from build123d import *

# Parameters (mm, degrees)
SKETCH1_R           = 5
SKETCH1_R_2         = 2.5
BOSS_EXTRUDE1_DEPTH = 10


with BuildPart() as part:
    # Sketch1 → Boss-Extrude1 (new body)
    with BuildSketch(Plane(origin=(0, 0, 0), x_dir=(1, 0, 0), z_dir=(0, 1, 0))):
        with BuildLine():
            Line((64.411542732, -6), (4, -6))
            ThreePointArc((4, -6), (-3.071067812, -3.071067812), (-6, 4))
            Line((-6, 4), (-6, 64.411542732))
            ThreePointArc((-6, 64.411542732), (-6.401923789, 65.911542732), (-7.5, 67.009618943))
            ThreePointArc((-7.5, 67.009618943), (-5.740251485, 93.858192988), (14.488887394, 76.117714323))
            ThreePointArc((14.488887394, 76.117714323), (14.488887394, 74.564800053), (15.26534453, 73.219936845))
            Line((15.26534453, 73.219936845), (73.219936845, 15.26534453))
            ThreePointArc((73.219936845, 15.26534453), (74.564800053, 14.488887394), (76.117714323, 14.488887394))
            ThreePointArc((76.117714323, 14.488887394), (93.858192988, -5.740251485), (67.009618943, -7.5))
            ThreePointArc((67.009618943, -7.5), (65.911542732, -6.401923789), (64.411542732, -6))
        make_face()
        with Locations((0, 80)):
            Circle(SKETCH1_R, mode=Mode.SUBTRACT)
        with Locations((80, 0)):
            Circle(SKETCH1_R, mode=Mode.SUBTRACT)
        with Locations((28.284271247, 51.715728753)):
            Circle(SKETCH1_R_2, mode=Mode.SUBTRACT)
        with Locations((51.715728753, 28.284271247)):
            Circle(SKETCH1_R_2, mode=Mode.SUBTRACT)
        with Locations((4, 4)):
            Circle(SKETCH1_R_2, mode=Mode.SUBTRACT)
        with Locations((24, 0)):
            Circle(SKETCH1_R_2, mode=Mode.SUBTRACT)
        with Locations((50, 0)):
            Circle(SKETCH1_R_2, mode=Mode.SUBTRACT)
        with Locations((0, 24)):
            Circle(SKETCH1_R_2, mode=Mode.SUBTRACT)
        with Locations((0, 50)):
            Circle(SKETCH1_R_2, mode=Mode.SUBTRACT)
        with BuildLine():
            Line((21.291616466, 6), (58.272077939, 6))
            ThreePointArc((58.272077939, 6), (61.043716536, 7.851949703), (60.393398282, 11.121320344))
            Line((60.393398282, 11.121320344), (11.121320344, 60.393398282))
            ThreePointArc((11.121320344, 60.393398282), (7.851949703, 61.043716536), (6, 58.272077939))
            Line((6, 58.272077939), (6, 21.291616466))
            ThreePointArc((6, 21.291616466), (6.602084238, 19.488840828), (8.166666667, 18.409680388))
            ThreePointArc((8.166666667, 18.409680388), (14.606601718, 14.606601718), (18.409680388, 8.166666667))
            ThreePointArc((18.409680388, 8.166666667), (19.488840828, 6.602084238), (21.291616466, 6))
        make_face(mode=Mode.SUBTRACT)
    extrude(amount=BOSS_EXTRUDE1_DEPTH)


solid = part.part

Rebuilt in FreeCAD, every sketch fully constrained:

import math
import FreeCAD as App
import Part
import Sketcher

V = App.Vector
Q = App.Units.Quantity

doc = App.newDocument("Part")
body = doc.addObject("PartDesign::Body", "Body")

# Sketch on XZ plane
sketch1 = doc.addObject("Sketcher::SketchObject", "Sketch")
body.addObject(sketch1)
sketch1.AttachmentSupport = (doc.XZ_Plane, [""])
sketch1.MapMode = "FlatFace"
sketch1.addGeometry([
    Part.LineSegment(V(4, 6, 0), V(64.4, 6, 0)),  # 0
    Part.ArcOfCircle(Part.Circle(V(64.4, 9, 0), V(0, 0, 1), 3), math.radians(-90), math.radians(-30)),  # 1
    Part.ArcOfCircle(Part.Circle(V(80, 0, 0), V(0, 0, 1), 15), math.radians(-105), math.radians(150)),  # 2
    Part.ArcOfCircle(Part.Circle(V(75.3, -17.4, 0), V(0, 0, 1), 3), math.radians(75), math.radians(135)),  # 3
    Part.LineSegment(V(73.2, -15.3, 0), V(15.3, -73.2, 0)),  # 4
    Part.ArcOfCircle(Part.Circle(V(17.4, -75.3, 0), V(0, 0, 1), 3), math.radians(135), math.radians(195)),  # 5
    Part.ArcOfCircle(Part.Circle(V(0, -80, 0), V(0, 0, 1), 15), math.radians(120), math.radians(375)),  # 6
    Part.ArcOfCircle(Part.Circle(V(-9, -64.4, 0), V(0, 0, 1), 3), math.radians(-60), math.radians(0)),  # 7
    Part.LineSegment(V(-6, -64.4, 0), V(-6, -4, 0)),  # 8
    Part.ArcOfCircle(Part.Circle(V(4, -4, 0), V(0, 0, 1), 10), math.radians(90), math.radians(180)),  # 9
    Part.Circle(V(80, 0, 0), V(0, 0, 1), 5),  # 10
    Part.Circle(V(50, 0, 0), V(0, 0, 1), 2.5),  # 11
    Part.Circle(V(51.7, -28.3, 0), V(0, 0, 1), 2.5),  # 12
    Part.Circle(V(24, 0, 0), V(0, 0, 1), 2.5),  # 13
    Part.Circle(V(4, -4, 0), V(0, 0, 1), 2.5),  # 14
    Part.ArcOfCircle(Part.Circle(V(21.3, -9, 0), V(0, 0, 1), 3), math.radians(90), math.radians(164)),  # 15
    Part.ArcOfCircle(Part.Circle(V(4, -4, 0), V(0, 0, 1), 15), math.radians(-74), math.radians(-16)),  # 16
    Part.ArcOfCircle(Part.Circle(V(9, -21.3, 0), V(0, 0, 1), 3), math.radians(106), math.radians(180)),  # 17
    Part.LineSegment(V(6, -21.3, 0), V(6, -58.3, 0)),  # 18
    Part.ArcOfCircle(Part.Circle(V(9, -58.3, 0), V(0, 0, 1), 3), math.radians(-180), math.radians(-45)),  # 19
    Part.LineSegment(V(11.1, -60.4, 0), V(60.4, -11.1, 0)),  # 20
    Part.ArcOfCircle(Part.Circle(V(58.3, -9, 0), V(0, 0, 1), 3), math.radians(-45), math.radians(90)),  # 21
    Part.LineSegment(V(58.3, -6, 0), V(21.3, -6, 0)),  # 22
    Part.Circle(V(0, -24, 0), V(0, 0, 1), 2.5),  # 23
    Part.Circle(V(28.3, -51.7, 0), V(0, 0, 1), 2.5),  # 24
    Part.Circle(V(0, -50, 0), V(0, 0, 1), 2.5),  # 25
    Part.Circle(V(0, -80, 0), V(0, 0, 1), 5),  # 26
], False)
sketch1.addConstraint([
    Sketcher.Constraint("Tangent", 0, 2, 1, 1),
    Sketcher.Constraint("Tangent", 1, 2, 2, 2),
    Sketcher.Constraint("Tangent", 2, 1, 3, 1),
    Sketcher.Constraint("Tangent", 3, 2, 4, 1),
    Sketcher.Constraint("Tangent", 4, 2, 5, 1),
    Sketcher.Constraint("Tangent", 5, 2, 6, 2),
    Sketcher.Constraint("Tangent", 6, 1, 7, 1),
    Sketcher.Constraint("Tangent", 7, 2, 8, 1),
    Sketcher.Constraint("Tangent", 8, 2, 9, 2),
    Sketcher.Constraint("Tangent", 9, 1, 0, 1),
    Sketcher.Constraint("Tangent", 15, 2, 16, 2),
    Sketcher.Constraint("Tangent", 16, 1, 17, 1),
    Sketcher.Constraint("Tangent", 17, 2, 18, 1),
    Sketcher.Constraint("Tangent", 18, 2, 19, 1),
    Sketcher.Constraint("Tangent", 19, 2, 20, 1),
    Sketcher.Constraint("Tangent", 20, 2, 21, 1),
    Sketcher.Constraint("Tangent", 21, 2, 22, 1),
    Sketcher.Constraint("Tangent", 22, 2, 15, 1),
    Sketcher.Constraint("Horizontal", 0),
    Sketcher.Constraint("Vertical", 8),
    Sketcher.Constraint("Vertical", 18),
    Sketcher.Constraint("Horizontal", 22),
    Sketcher.Constraint("Coincident", 10, 3, 2, 3),
    Sketcher.Constraint("Coincident", 14, 3, 9, 3),
    Sketcher.Constraint("Coincident", 16, 3, 9, 3),
    Sketcher.Constraint("Coincident", 26, 3, 6, 3),
    Sketcher.Constraint("Equal", 1, 3),
    Sketcher.Constraint("Equal", 3, 5),
    Sketcher.Constraint("Equal", 2, 6),
    Sketcher.Constraint("Equal", 5, 7),
    Sketcher.Constraint("Equal", 11, 12),
    Sketcher.Constraint("Equal", 12, 13),
    Sketcher.Constraint("Equal", 13, 14),
    Sketcher.Constraint("Equal", 7, 15),
    Sketcher.Constraint("Equal", 6, 16),
    Sketcher.Constraint("Equal", 15, 17),
    Sketcher.Constraint("Equal", 17, 19),
    Sketcher.Constraint("Equal", 19, 21),
    Sketcher.Constraint("Equal", 14, 23),
    Sketcher.Constraint("Equal", 23, 24),
    Sketcher.Constraint("Equal", 24, 25),
    Sketcher.Constraint("Equal", 10, 26),
    Sketcher.Constraint("PointOnObject", 2, 3, -1),
    Sketcher.Constraint("PointOnObject", 6, 3, -2),
    Sketcher.Constraint("PointOnObject", 11, 3, -1),
    Sketcher.Constraint("PointOnObject", 13, 3, -1),
    Sketcher.Constraint("PointOnObject", 23, 3, -2),
    Sketcher.Constraint("PointOnObject", 25, 3, -2),
    Sketcher.Constraint("Parallel", 4, 20),
    Sketcher.Constraint("Equal", 0, 8),
    Sketcher.Constraint("Equal", 22, 18),
    Sketcher.Constraint("Diameter", 10, Q("10 mm")),
    Sketcher.Constraint("Diameter", 11, Q("5 mm")),
    Sketcher.Constraint("Radius", 1, Q("3 mm")),
    Sketcher.Constraint("Radius", 2, Q("15 mm")),
    Sketcher.Constraint("Radius", 9, Q("10 mm")),
    Sketcher.Constraint("Angle", 4, Q("-135 deg")),
    Sketcher.Constraint("DistanceY", -1, 1, 1, 3, Q("9 mm")),
    Sketcher.Constraint("DistanceX", -1, 1, 2, 3, Q("80 mm")),
    Sketcher.Constraint("DistanceY", 6, 3, -1, 1, Q("80 mm")),
    Sketcher.Constraint("DistanceX", -1, 1, 11, 3, Q("50 mm")),
    Sketcher.Constraint("DistanceX", -1, 1, 13, 3, Q("24 mm")),
    Sketcher.Constraint("DistanceY", 15, 3, -1, 1, Q("9 mm")),
    Sketcher.Constraint("DistanceY", 23, 3, -1, 1, Q("24 mm")),
    Sketcher.Constraint("DistanceY", 25, 3, -1, 1, Q("50 mm")),
    Sketcher.Constraint("DistanceX", 22, 2, 22, 1, Q("36.980461 mm")),
    Sketcher.Constraint("Distance", 4, Q("81.96017 mm")),
    Sketcher.Constraint("DistanceX", -1, 1, 12, 3, Q("51.715729 mm")),
    Sketcher.Constraint("DistanceY", 12, 3, -1, 1, Q("28.284271 mm")),
    Sketcher.Constraint("DistanceX", -1, 1, 24, 3, Q("28.284271 mm")),
    Sketcher.Constraint("DistanceY", 24, 3, -1, 1, Q("51.715729 mm")),
])
pad1 = doc.addObject("PartDesign::Pad", "Pad")
body.addObject(pad1)
pad1.Profile = sketch1
pad1.Length = 10
pad1.Reversed = True

doc.recompute()
